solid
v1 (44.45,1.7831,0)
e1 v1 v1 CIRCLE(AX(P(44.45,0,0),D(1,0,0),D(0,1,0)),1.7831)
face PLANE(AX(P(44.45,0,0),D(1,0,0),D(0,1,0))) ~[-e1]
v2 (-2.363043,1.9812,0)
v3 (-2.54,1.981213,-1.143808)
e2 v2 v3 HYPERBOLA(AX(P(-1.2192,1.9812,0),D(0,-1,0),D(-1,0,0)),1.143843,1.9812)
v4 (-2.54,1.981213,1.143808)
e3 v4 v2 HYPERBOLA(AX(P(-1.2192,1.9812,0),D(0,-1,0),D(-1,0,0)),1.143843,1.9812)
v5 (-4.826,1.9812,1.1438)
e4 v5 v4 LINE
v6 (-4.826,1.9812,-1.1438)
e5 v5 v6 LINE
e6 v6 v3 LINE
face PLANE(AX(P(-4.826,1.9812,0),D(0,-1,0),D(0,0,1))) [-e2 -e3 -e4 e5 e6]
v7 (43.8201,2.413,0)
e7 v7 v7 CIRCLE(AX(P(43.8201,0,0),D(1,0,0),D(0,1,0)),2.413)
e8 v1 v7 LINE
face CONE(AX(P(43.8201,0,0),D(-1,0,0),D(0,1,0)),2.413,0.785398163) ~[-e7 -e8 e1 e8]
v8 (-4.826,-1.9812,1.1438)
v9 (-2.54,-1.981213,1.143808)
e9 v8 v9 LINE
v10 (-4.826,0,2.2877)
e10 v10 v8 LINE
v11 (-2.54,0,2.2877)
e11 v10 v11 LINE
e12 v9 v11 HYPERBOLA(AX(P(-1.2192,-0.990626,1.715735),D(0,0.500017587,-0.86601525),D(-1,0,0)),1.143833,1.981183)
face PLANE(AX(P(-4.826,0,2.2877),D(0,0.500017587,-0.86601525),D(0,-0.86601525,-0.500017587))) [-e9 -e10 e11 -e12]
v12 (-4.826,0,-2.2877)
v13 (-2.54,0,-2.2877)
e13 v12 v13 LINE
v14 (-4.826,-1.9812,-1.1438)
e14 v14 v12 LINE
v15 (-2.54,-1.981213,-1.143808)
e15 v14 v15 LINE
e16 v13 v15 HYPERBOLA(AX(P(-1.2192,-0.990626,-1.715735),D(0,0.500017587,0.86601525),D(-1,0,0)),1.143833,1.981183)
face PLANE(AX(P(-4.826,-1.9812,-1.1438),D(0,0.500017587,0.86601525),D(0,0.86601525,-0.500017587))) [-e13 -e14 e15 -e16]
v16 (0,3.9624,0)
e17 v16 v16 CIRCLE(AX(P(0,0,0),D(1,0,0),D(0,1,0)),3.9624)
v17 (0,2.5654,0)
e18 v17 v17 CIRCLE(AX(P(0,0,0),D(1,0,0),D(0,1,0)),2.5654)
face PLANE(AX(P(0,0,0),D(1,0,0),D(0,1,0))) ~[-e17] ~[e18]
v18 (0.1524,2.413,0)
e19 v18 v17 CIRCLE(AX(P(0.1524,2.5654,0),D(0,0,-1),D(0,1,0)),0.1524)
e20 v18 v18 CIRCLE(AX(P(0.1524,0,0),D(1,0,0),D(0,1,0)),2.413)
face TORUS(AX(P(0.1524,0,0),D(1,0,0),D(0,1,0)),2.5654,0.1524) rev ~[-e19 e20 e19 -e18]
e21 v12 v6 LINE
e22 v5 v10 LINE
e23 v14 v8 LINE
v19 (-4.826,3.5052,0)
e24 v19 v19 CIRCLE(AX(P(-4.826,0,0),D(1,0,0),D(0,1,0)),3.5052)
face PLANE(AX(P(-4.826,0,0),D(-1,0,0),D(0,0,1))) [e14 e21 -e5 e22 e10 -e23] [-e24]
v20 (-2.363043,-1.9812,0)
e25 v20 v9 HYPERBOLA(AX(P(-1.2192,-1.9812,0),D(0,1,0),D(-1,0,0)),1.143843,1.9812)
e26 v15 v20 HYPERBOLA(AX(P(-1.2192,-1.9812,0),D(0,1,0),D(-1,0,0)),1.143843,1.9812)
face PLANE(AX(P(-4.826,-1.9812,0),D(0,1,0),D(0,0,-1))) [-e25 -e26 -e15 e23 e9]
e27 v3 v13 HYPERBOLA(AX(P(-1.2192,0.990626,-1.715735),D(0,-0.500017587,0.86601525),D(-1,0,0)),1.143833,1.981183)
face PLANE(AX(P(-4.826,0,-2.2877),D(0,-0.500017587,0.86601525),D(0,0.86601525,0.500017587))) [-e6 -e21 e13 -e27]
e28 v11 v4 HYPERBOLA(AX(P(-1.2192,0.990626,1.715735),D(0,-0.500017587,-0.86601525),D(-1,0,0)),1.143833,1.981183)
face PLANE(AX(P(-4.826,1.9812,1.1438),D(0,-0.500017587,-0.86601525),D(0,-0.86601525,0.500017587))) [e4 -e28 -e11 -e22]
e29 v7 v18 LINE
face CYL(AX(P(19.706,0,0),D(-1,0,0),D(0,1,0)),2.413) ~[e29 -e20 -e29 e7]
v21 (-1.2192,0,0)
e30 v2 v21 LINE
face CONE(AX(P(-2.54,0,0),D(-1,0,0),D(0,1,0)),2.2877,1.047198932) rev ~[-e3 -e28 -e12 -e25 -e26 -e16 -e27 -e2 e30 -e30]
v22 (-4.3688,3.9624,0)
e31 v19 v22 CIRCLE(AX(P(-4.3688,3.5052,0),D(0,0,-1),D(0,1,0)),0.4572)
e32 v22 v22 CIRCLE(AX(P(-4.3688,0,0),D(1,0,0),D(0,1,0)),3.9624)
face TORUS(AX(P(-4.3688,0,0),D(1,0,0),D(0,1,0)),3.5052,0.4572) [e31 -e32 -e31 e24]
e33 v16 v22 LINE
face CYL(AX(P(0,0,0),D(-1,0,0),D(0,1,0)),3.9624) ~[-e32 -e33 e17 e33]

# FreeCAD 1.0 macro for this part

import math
import FreeCAD as App
import Part
import Sketcher

V = App.Vector
Q = App.Units.Quantity


def edges_at(feature, points):
    """Names of the edges that pass closest to the given points."""
    edges = feature.Shape.Edges
    near = lambda p: min(range(len(edges)), key=lambda i: edges[i].distToShape(Part.Vertex(*p))[0])
    return sorted({f"Edge{near(p) + 1}" for p in points})

doc = App.newDocument("Part")
body = doc.addObject("PartDesign::Body", "Body")

# Sketch on XY plane
sketch1 = body.newObject("Sketcher::SketchObject", "Sketch")
sketch1.AttachmentSupport = (doc.getObject("XY_Plane"), [""])
sketch1.MapMode = "FlatFace"
sketch1.addGeometry(Part.LineSegment(V(-2.54, 2.2877, 0), V(-1.2192, 0, 0)), False)
sketch1.addGeometry(Part.LineSegment(V(-1.2192, 0, 0), V(44.45, 0, 0)), False)
sketch1.addGeometry(Part.LineSegment(V(44.45, 0, 0), V(44.45, 2.413, 0)), False)
sketch1.addGeometry(Part.LineSegment(V(44.45, 2.413, 0), V(0, 2.413, 0)), False)
sketch1.addGeometry(Part.LineSegment(V(0, 2.413, 0), V(0, 3.9624, 0)), False)
sketch1.addGeometry(Part.LineSegment(V(0, 3.9624, 0), V(-4.826, 3.9624, 0)), False)
sketch1.addGeometry(Part.LineSegment(V(-4.826, 3.9624, 0), V(-4.826, 2.2877, 0)), False)
sketch1.addGeometry(Part.LineSegment(V(-4.826, 2.2877, 0), V(-2.54, 2.2877, 0)), False)
sketch1.addConstraint(Sketcher.Constraint("Coincident", 0, 2, 1, 1))
sketch1.addConstraint(Sketcher.Constraint("Coincident", 1, 2, 2, 1))
sketch1.addConstraint(Sketcher.Constraint("Coincident", 2, 2, 3, 1))
sketch1.addConstraint(Sketcher.Constraint("Coincident", 3, 2, 4, 1))
sketch1.addConstraint(Sketcher.Constraint("Coincident", 4, 2, 5, 1))
sketch1.addConstraint(Sketcher.Constraint("Coincident", 5, 2, 6, 1))
sketch1.addConstraint(Sketcher.Constraint("Coincident", 6, 2, 7, 1))
sketch1.addConstraint(Sketcher.Constraint("Coincident", 7, 2, 0, 1))
sketch1.addConstraint(Sketcher.Constraint("Horizontal", 1))
sketch1.addConstraint(Sketcher.Constraint("Vertical", 2))
sketch1.addConstraint(Sketcher.Constraint("Horizontal", 3))
sketch1.addConstraint(Sketcher.Constraint("Vertical", 4))
sketch1.addConstraint(Sketcher.Constraint("Horizontal", 5))
sketch1.addConstraint(Sketcher.Constraint("Vertical", 6))
sketch1.addConstraint(Sketcher.Constraint("Horizontal", 7))
sketch1.addConstraint(Sketcher.Constraint("PointOnObject", 0, 2, -1))
sketch1.addConstraint(Sketcher.Constraint("PointOnObject", 3, 2, -2))
sketch1.addConstraint(Sketcher.Constraint("Angle", 0, Q("-60 deg")))
sketch1.addConstraint(Sketcher.Constraint("DistanceX", 3, 2, 3, 1, Q("1.75 in")))
sketch1.addConstraint(Sketcher.Constraint("DistanceX", 5, 2, 5, 1, Q("0.19 in")))
sketch1.addConstraint(Sketcher.Constraint("DistanceX", 7, 1, 7, 2, Q("0.09 in")))
sketch1.addConstraint(Sketcher.Constraint("DistanceX", 1, 1, 1, 2, Q("1.798 in")))
sketch1.addConstraint(Sketcher.Constraint("DistanceY", 2, 1, 2, 2, Q("0.095 in")))
sketch1.addConstraint(Sketcher.Constraint("DistanceY", 4, 1, 4, 2, Q("0.061 in")))
revolution = body.newObject("PartDesign::Revolution", "Revolution")
revolution.Profile = sketch1
revolution.ReferenceAxis = (sketch1, ["H_Axis"])
revolution.Angle = 360

# Sketch on YZ plane
sketch2 = body.newObject("Sketcher::SketchObject", "Sketch001")
sketch2.AttachmentSupport = (doc.getObject("YZ_Plane"), [""])
sketch2.MapMode = "FlatFace"
sketch2.AttachmentOffset = App.Placement(V(0, 0, -0.19 * 25.4), App.Rotation())
sketch2.addGeometry(Part.LineSegment(V(1.9812, 1.1438, 0), V(0, 2.2877, 0)), False)
sketch2.addGeometry(Part.ArcOfCircle(Part.Circle(V(0, 0, 0), V(0, 0, 1), 2.2877), math.radians(29.998995), math.radians(90)), False)
sketch2.addGeometry(Part.ArcOfCircle(Part.Circle(V(0, 0, 0), V(0, 0, 1), 2.2877), math.radians(90), math.radians(150.001005)), False)
sketch2.addGeometry(Part.LineSegment(V(0, 2.2877, 0), V(-1.9812, 1.1438, 0)), False)
sketch2.addGeometry(Part.ArcOfCircle(Part.Circle(V(0, 0, 0), V(0, 0, 1), 2.2877), math.radians(-29.998995), math.radians(29.998995)), False)
sketch2.addGeometry(Part.LineSegment(V(1.9812, 1.1438, 0), V(1.9812, -1.1438, 0)), False)
sketch2.addGeometry(Part.LineSegment(V(-1.9812, 1.1438, 0), V(-1.9812, -1.1438, 0)), False)
sketch2.addGeometry(Part.ArcOfCircle(Part.Circle(V(0, 0, 0), V(0, 0, 1), 2.2877), math.radians(150.001005), math.radians(209.998995)), False)
sketch2.addGeometry(Part.LineSegment(V(-1.9812, -1.1438, 0), V(0, -2.2877, 0)), False)
sketch2.addGeometry(Part.ArcOfCircle(Part.Circle(V(0, 0, 0), V(0, 0, 1), 2.2877), math.radians(-150.001005), math.radians(-90)), False)
sketch2.addGeometry(Part.ArcOfCircle(Part.Circle(V(0, 0, 0), V(0, 0, 1), 2.2877), math.radians(-90), math.radians(-29.998995)), False)
sketch2.addGeometry(Part.LineSegment(V(0, -2.2877, 0), V(1.9812, -1.1438, 0)), False)
sketch2.addConstraint(Sketcher.Constraint("Coincident", 0, 1, 1, 1))
sketch2.addConstraint(Sketcher.Constraint("Coincident", 1, 2, 0, 2))
sketch2.addConstraint(Sketcher.Constraint("Coincident", 2, 1, 3, 1))
sketch2.addConstraint(Sketcher.Constraint("Coincident", 3, 2, 2, 2))
sketch2.addConstraint(Sketcher.Constraint("Coincident", 4, 1, 5, 2))
sketch2.addConstraint(Sketcher.Constraint("Coincident", 5, 1, 4, 2))
sketch2.addConstraint(Sketcher.Constraint("Coincident", 6, 1, 7, 1))
sketch2.addConstraint(Sketcher.Constraint("Coincident", 7, 2, 6, 2))
sketch2.addConstraint(Sketcher.Constraint("Coincident", 8, 1, 9, 1))
sketch2.addConstraint(Sketcher.Constraint("Coincident", 9, 2, 8, 2))
sketch2.addConstraint(Sketcher.Constraint("Coincident", 10, 1, 11, 1))
sketch2.addConstraint(Sketcher.Constraint("Coincident", 11, 2, 10, 2))
sketch2.addConstraint(Sketcher.Constraint("Vertical", 5))
sketch2.addConstraint(Sketcher.Constraint("Vertical", 6))
sketch2.addConstraint(Sketcher.Constraint("Coincident", 1, 3, -1, 1))
sketch2.addConstraint(Sketcher.Constraint("Coincident", 2, 3, -1, 1))
sketch2.addConstraint(Sketcher.Constraint("Coincident", 4, 3, -1, 1))
sketch2.addConstraint(Sketcher.Constraint("Coincident", 7, 3, -1, 1))
sketch2.addConstraint(Sketcher.Constraint("Coincident", 9, 3, -1, 1))
sketch2.addConstraint(Sketcher.Constraint("Coincident", 10, 3, -1, 1))
sketch2.addConstraint(Sketcher.Constraint("Coincident", 2, 1, 1, 2))
sketch2.addConstraint(Sketcher.Constraint("Coincident", 5, 1, 0, 1))
sketch2.addConstraint(Sketcher.Constraint("Coincident", 6, 1, 3, 2))
sketch2.addConstraint(Sketcher.Constraint("Coincident", 8, 1, 7, 2))
sketch2.addConstraint(Sketcher.Constraint("Coincident", 10, 1, 9, 2))
sketch2.addConstraint(Sketcher.Constraint("PointOnObject", 1, 2, -2))
sketch2.addConstraint(Sketcher.Constraint("PointOnObject", 9, 2, -2))
sketch2.addConstraint(Sketcher.Constraint("Parallel", 0, 8))
sketch2.addConstraint(Sketcher.Constraint("Parallel", 3, 11))
sketch2.addConstraint(Sketcher.Constraint("Angle", 0, Q("149.9988 deg")))
sketch2.addConstraint(Sketcher.Constraint("Radius", 1, 2.2877))
pad1 = body.newObject("PartDesign::Pad", "Pad")
pad1.Profile = sketch2
pad1.Length = 2.463
doc.recompute()

fillet = body.newObject("PartDesign::Fillet", "Fillet")
fillet.Base = (pad1, edges_at(pad1, [(-4.826, -3.962, 0)]))
fillet.Radius = Q("0.018 in")
doc.recompute()

chamfer = body.newObject("PartDesign::Chamfer", "Chamfer")
chamfer.Base = (fillet, edges_at(fillet, [(44.45, -2.413, 0)]))
chamfer.ChamferType = "Two distances"
chamfer.Size = Q("0.0247992 in")
chamfer.Size2 = Q("0.0247992 in")
doc.recompute()

fillet2 = body.newObject("PartDesign::Fillet", "Fillet001")
fillet2.Base = (chamfer, edges_at(chamfer, [(0, -2.413, 0)]))
fillet2.Radius = Q("0.006 in")

doc.recompute()
